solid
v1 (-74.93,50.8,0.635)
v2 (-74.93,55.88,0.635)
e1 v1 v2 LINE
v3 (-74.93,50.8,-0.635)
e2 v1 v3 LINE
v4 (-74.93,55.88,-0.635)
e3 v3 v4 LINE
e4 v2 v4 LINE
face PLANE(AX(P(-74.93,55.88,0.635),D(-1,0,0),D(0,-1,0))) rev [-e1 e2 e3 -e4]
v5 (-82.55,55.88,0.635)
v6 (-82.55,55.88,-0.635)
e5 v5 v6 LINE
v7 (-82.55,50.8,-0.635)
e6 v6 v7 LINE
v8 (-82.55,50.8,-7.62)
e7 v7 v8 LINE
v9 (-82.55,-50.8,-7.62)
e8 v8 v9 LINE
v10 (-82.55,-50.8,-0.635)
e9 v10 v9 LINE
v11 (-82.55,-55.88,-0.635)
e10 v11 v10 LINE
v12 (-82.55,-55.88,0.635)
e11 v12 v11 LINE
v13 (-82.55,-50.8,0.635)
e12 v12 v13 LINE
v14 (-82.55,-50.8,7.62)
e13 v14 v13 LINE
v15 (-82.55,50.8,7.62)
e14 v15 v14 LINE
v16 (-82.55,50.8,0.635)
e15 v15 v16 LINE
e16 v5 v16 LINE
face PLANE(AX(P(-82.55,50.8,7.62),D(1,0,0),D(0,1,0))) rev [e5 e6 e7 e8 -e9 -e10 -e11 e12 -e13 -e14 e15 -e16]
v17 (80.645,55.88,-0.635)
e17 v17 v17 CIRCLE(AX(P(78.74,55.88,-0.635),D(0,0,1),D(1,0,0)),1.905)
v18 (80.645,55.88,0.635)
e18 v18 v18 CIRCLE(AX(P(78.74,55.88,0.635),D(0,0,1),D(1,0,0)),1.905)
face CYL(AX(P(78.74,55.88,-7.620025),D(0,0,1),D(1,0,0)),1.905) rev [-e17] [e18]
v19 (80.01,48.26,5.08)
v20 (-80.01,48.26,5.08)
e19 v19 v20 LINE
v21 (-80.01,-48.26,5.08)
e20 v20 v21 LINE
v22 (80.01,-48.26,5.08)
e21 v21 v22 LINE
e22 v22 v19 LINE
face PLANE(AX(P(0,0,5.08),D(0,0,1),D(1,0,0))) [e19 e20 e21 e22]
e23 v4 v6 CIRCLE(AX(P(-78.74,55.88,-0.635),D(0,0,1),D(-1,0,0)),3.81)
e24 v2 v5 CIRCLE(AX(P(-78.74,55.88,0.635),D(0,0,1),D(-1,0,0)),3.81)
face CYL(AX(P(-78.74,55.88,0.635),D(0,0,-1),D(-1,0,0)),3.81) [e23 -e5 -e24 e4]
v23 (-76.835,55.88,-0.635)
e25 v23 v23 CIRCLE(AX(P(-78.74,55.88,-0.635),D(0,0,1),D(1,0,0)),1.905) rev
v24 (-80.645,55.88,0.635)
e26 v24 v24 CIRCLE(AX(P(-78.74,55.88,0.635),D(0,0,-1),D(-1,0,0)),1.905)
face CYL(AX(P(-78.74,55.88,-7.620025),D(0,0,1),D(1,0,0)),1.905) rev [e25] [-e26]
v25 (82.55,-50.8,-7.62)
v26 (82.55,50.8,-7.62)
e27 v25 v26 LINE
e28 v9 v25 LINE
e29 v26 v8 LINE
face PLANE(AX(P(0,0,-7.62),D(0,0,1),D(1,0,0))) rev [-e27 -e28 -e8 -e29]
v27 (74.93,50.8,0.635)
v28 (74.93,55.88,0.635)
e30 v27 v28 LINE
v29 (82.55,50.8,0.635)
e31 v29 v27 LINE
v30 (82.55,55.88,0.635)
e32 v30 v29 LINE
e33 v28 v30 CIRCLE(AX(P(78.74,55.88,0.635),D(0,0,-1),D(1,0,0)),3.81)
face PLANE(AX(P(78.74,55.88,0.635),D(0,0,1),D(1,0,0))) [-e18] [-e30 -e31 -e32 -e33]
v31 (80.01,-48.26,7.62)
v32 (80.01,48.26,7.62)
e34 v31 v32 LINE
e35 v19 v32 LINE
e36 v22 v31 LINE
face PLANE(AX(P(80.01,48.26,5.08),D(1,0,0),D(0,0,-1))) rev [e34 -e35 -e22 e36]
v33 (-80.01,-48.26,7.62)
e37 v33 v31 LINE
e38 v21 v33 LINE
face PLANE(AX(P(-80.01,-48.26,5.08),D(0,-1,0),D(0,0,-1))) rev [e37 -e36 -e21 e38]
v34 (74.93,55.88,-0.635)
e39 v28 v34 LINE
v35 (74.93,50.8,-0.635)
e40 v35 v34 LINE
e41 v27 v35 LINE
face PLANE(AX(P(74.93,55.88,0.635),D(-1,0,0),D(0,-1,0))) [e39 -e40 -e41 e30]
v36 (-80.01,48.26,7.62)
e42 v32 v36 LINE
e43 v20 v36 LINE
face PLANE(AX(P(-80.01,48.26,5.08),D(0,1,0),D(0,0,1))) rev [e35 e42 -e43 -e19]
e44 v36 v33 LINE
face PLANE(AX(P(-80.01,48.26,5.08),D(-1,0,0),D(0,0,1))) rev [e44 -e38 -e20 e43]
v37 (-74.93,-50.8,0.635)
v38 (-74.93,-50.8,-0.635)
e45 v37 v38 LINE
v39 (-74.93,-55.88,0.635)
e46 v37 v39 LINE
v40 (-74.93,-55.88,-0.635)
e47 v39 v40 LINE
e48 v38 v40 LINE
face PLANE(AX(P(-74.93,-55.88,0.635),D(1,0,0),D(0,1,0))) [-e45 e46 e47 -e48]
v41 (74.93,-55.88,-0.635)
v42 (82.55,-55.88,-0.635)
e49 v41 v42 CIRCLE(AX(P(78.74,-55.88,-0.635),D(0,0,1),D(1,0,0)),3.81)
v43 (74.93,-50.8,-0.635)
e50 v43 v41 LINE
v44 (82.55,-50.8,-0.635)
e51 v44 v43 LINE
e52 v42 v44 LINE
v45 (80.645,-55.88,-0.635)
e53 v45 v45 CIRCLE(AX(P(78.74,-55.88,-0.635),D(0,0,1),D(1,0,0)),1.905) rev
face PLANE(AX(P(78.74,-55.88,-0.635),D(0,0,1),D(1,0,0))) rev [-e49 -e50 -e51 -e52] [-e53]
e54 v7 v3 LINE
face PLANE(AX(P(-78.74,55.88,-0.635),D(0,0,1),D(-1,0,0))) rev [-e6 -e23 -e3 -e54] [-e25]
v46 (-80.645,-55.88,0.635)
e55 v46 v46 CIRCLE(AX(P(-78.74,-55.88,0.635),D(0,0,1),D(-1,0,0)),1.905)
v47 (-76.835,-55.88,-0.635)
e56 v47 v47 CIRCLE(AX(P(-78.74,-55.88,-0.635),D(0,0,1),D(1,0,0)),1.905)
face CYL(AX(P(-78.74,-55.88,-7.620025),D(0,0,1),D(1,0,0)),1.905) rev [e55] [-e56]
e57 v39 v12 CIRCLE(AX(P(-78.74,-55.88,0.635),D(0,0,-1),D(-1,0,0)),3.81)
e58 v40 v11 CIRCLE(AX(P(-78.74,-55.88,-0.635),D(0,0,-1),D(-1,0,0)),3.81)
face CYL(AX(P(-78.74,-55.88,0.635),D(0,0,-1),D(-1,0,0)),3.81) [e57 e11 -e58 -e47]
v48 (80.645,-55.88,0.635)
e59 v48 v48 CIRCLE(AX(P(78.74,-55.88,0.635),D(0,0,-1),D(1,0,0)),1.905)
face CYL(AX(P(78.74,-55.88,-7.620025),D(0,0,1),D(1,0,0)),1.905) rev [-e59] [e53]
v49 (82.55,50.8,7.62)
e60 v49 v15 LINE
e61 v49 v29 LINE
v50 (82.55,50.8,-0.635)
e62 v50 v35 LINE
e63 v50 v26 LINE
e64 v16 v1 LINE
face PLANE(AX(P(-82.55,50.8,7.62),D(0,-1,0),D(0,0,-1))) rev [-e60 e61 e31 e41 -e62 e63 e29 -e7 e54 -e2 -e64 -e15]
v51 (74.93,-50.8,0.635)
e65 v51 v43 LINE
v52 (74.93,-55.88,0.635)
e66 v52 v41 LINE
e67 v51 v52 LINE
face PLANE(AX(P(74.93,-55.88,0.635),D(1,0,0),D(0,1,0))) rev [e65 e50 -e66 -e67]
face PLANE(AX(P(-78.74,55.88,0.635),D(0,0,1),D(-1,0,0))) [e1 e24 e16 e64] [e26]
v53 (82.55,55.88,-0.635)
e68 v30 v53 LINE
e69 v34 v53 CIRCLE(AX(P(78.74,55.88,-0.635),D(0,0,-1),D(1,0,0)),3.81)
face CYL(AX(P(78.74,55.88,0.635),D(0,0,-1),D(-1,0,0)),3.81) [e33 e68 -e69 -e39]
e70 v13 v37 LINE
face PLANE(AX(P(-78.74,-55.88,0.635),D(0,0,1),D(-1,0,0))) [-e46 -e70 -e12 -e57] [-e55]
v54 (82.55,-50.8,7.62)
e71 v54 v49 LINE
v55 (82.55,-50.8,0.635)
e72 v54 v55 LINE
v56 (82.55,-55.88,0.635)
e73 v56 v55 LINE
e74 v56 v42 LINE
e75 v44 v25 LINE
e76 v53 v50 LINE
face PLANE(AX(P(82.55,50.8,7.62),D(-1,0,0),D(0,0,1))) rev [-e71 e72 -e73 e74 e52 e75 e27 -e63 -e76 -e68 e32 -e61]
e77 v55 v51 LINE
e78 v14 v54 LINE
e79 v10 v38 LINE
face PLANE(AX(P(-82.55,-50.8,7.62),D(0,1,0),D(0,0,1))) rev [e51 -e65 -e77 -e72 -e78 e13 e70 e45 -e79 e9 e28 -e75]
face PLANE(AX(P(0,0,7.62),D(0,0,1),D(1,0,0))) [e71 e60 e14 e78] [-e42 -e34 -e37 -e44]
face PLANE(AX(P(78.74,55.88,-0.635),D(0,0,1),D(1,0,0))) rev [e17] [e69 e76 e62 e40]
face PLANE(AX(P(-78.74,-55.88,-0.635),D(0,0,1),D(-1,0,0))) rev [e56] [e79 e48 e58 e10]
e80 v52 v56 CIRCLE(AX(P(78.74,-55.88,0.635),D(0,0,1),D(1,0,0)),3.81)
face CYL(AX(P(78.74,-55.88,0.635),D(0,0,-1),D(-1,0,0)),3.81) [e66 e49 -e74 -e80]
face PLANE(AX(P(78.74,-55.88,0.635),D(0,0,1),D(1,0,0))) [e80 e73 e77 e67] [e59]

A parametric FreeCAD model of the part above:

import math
import FreeCAD as App
import Part
import Sketcher

V = App.Vector
Q = App.Units.Quantity


def add_polygon(sketch, points):
    """Adds a closed chain of lines whose ends are joined by coincident constraints."""
    first, n = sketch.GeometryCount, len(points)
    for a, b in zip(points, points[1:] + points[:1]):
        sketch.addGeometry(Part.LineSegment(App.Vector(*a, 0), App.Vector(*b, 0)), False)
    for i in range(n):
        sketch.addConstraint(Sketcher.Constraint("Coincident", first + i, 2, first + (i + 1) % n, 1))

doc = App.newDocument("Part")
body = doc.addObject("PartDesign::Body", "Body")

# Sketch on XY plane
sketch1 = body.newObject("Sketcher::SketchObject", "Sketch")
sketch1.AttachmentSupport = (doc.getObject("XY_Plane"), [""])
sketch1.MapMode = "FlatFace"
add_polygon(sketch1, [(-82.55, 50.8), (-82.55, -50.8), (82.55, -50.8), (82.55, 50.8)])  # lines 0-3
sketch1.addConstraint([
    Sketcher.Constraint("Vertical", 0),
    Sketcher.Constraint("Horizontal", 1),
    Sketcher.Constraint("Vertical", 2),
    Sketcher.Constraint("Horizontal", 3),
    Sketcher.Constraint("Symmetric", 0, 2, 2, 2, -1, 1),
    Sketcher.Constraint("DistanceY", 0, 2, 0, 1, Q("4 in")),
    Sketcher.Constraint("DistanceX", 1, 1, 1, 2, Q("6.5 in")),
])
pad1 = body.newObject("PartDesign::Pad", "Pad")
pad1.Profile = sketch1
pad1.Length = Q("0.6 in")
pad1.Midplane = True

# Sketch on XY plane
sketch2 = body.newObject("Sketcher::SketchObject", "Sketch001")
sketch2.AttachmentSupport = (doc.getObject("XY_Plane"), [""])
sketch2.MapMode = "FlatFace"
sketch2.AttachmentOffset = App.Placement(V(0, 0, 0.3 * 25.4), App.Rotation())
add_polygon(sketch2, [(-80.01, 48.26), (-80.01, -48.26), (80.01, -48.26), (80.01, 48.26)])  # lines 0-3
sketch2.addConstraint([
    Sketcher.Constraint("Vertical", 0),
    Sketcher.Constraint("Horizontal", 1),
    Sketcher.Constraint("Vertical", 2),
    Sketcher.Constraint("Horizontal", 3),
    Sketcher.Constraint("Symmetric", 0, 2, 2, 2, -1, 1),
    Sketcher.Constraint("DistanceX", 1, 1, 1, 2, Q("6.3 in")),
    Sketcher.Constraint("DistanceY", 0, 2, 0, 1, Q("3.8 in")),
])
pocket1 = body.newObject("PartDesign::Pocket", "Pocket")
pocket1.Profile = sketch2
pocket1.Length = Q("0.1 in")

# Sketch on XY plane
sketch3 = body.newObject("Sketcher::SketchObject", "Sketch002")
sketch3.AttachmentSupport = (doc.getObject("XY_Plane"), [""])
sketch3.MapMode = "FlatFace"
sketch3.addGeometry([
    Part.LineSegment(V(82.55, 55.88, 0), V(82.55, 50.8, 0)),
    Part.LineSegment(V(82.55, 50.8, 0), V(74.93, 50.8, 0)),
    Part.LineSegment(V(74.93, 50.8, 0), V(74.93, 55.88, 0)),
    Part.ArcOfCircle(Part.Circle(V(78.74, 55.88, 0), V(0, 0, 1), 3.81), math.radians(0), math.radians(180)),
], False)
sketch3.addConstraint([
    Sketcher.Constraint("Coincident", 0, 2, 1, 1),
    Sketcher.Constraint("Coincident", 1, 2, 2, 1),
    Sketcher.Constraint("Tangent", 2, 2, 3, 2),
    Sketcher.Constraint("Tangent", 3, 1, 0, 1),
    Sketcher.Constraint("Vertical", 0),
    Sketcher.Constraint("Horizontal", 1),
    Sketcher.Constraint("Vertical", 2),
    Sketcher.Constraint("Radius", 3, Q("0.15 in")),
    Sketcher.Constraint("DistanceY", 0, 2, 0, 1, Q("0.2 in")),
    Sketcher.Constraint("DistanceY", -1, 1, 0, 2, Q("2 in")),
    Sketcher.Constraint("DistanceX", -1, 1, 3, 3, Q("3.1 in")),
])
pad2 = body.newObject("PartDesign::Pad", "Pad001")
pad2.Profile = sketch3
pad2.Length = Q("0.05 in")
pad2.Midplane = True

# Sketch on XY plane
sketch4 = body.newObject("Sketcher::SketchObject", "Sketch003")
sketch4.AttachmentSupport = (doc.getObject("XY_Plane"), [""])
sketch4.MapMode = "FlatFace"
sketch4.AttachmentOffset = App.Placement(V(0, 0, 0.025 * 25.4), App.Rotation())
sketch4.addGeometry(Part.Circle(V(78.74, 55.88, 0), V(0, 0, 1), 1.905), False)
sketch4.addConstraint([
    Sketcher.Constraint("Diameter", 0, Q("0.15 in")),
    Sketcher.Constraint("DistanceX", -1, 1, 0, 3, Q("3.1 in")),
    Sketcher.Constraint("DistanceY", -1, 1, 0, 3, Q("2.2 in")),
])
pocket2 = body.newObject("PartDesign::Pocket", "Pocket001")
pocket2.Profile = sketch4
pocket2.Type = "ThroughAll"
doc.recompute()

mirrored = body.newObject("PartDesign::Mirrored", "Mirrored")
mirrored.Originals = [pad2, pocket2]
mirrored.MirrorPlane = (doc.getObject("XZ_Plane"), [""])
body.Tip = mirrored
doc.recompute()

mirrored2 = body.newObject("PartDesign::Mirrored", "Mirrored001")
mirrored2.Originals = [pad2, pocket2]
mirrored2.MirrorPlane = (doc.getObject("YZ_Plane"), [""])
body.Tip = mirrored2

# Sketch on XY plane
sketch5 = body.newObject("Sketcher::SketchObject", "Sketch004")
sketch5.AttachmentSupport = (doc.getObject("XY_Plane"), [""])
sketch5.MapMode = "FlatFace"
sketch5.addGeometry([
    Part.LineSegment(V(-82.55, -55.88, 0), V(-82.55, -50.8, 0)),
    Part.LineSegment(V(-82.55, -50.8, 0), V(-74.93, -50.8, 0)),
    Part.LineSegment(V(-74.93, -50.8, 0), V(-74.93, -55.88, 0)),
    Part.ArcOfCircle(Part.Circle(V(-78.74, -55.88, 0), V(0, 0, 1), 3.81), math.radians(180), math.radians(360)),
], False)
sketch5.addConstraint([
    Sketcher.Constraint("Coincident", 0, 2, 1, 1),
    Sketcher.Constraint("Coincident", 1, 2, 2, 1),
    Sketcher.Constraint("Tangent", 2, 2, 3, 2),
    Sketcher.Constraint("Tangent", 3, 1, 0, 1),
    Sketcher.Constraint("Vertical", 0),
    Sketcher.Constraint("Horizontal", 1),
    Sketcher.Constraint("Vertical", 2),
    Sketcher.Constraint("Radius", 3, Q("0.15 in")),
    Sketcher.Constraint("DistanceY", 0, 1, 0, 2, Q("0.2 in")),
    Sketcher.Constraint("DistanceY", 0, 2, -1, 1, Q("2 in")),
    Sketcher.Constraint("DistanceX", 3, 3, -1, 1, Q("3.1 in")),
])
pad3 = body.newObject("PartDesign::Pad", "Pad002")
pad3.Profile = sketch5
pad3.Length = Q("0.05 in")
pad3.Midplane = True

# Sketch on XY plane
sketch6 = body.newObject("Sketcher::SketchObject", "Sketch005")
sketch6.AttachmentSupport = (doc.getObject("XY_Plane"), [""])
sketch6.MapMode = "FlatFace"
sketch6.AttachmentOffset = App.Placement(V(0, 0, 0.025 * 25.4), App.Rotation())
sketch6.addGeometry(Part.Circle(V(-78.74, -55.88, 0), V(0, 0, 1), 1.905), False)
sketch6.addConstraint([
    Sketcher.Constraint("Diameter", 0, Q("0.15 in")),
    Sketcher.Constraint("DistanceX", 0, 3, -1, 1, Q("3.1 in")),
    Sketcher.Constraint("DistanceY", 0, 3, -1, 1, Q("2.2 in")),
])
pocket3 = body.newObject("PartDesign::Pocket", "Pocket002")
pocket3.Profile = sketch6
pocket3.Type = "ThroughAll"

doc.recompute()
